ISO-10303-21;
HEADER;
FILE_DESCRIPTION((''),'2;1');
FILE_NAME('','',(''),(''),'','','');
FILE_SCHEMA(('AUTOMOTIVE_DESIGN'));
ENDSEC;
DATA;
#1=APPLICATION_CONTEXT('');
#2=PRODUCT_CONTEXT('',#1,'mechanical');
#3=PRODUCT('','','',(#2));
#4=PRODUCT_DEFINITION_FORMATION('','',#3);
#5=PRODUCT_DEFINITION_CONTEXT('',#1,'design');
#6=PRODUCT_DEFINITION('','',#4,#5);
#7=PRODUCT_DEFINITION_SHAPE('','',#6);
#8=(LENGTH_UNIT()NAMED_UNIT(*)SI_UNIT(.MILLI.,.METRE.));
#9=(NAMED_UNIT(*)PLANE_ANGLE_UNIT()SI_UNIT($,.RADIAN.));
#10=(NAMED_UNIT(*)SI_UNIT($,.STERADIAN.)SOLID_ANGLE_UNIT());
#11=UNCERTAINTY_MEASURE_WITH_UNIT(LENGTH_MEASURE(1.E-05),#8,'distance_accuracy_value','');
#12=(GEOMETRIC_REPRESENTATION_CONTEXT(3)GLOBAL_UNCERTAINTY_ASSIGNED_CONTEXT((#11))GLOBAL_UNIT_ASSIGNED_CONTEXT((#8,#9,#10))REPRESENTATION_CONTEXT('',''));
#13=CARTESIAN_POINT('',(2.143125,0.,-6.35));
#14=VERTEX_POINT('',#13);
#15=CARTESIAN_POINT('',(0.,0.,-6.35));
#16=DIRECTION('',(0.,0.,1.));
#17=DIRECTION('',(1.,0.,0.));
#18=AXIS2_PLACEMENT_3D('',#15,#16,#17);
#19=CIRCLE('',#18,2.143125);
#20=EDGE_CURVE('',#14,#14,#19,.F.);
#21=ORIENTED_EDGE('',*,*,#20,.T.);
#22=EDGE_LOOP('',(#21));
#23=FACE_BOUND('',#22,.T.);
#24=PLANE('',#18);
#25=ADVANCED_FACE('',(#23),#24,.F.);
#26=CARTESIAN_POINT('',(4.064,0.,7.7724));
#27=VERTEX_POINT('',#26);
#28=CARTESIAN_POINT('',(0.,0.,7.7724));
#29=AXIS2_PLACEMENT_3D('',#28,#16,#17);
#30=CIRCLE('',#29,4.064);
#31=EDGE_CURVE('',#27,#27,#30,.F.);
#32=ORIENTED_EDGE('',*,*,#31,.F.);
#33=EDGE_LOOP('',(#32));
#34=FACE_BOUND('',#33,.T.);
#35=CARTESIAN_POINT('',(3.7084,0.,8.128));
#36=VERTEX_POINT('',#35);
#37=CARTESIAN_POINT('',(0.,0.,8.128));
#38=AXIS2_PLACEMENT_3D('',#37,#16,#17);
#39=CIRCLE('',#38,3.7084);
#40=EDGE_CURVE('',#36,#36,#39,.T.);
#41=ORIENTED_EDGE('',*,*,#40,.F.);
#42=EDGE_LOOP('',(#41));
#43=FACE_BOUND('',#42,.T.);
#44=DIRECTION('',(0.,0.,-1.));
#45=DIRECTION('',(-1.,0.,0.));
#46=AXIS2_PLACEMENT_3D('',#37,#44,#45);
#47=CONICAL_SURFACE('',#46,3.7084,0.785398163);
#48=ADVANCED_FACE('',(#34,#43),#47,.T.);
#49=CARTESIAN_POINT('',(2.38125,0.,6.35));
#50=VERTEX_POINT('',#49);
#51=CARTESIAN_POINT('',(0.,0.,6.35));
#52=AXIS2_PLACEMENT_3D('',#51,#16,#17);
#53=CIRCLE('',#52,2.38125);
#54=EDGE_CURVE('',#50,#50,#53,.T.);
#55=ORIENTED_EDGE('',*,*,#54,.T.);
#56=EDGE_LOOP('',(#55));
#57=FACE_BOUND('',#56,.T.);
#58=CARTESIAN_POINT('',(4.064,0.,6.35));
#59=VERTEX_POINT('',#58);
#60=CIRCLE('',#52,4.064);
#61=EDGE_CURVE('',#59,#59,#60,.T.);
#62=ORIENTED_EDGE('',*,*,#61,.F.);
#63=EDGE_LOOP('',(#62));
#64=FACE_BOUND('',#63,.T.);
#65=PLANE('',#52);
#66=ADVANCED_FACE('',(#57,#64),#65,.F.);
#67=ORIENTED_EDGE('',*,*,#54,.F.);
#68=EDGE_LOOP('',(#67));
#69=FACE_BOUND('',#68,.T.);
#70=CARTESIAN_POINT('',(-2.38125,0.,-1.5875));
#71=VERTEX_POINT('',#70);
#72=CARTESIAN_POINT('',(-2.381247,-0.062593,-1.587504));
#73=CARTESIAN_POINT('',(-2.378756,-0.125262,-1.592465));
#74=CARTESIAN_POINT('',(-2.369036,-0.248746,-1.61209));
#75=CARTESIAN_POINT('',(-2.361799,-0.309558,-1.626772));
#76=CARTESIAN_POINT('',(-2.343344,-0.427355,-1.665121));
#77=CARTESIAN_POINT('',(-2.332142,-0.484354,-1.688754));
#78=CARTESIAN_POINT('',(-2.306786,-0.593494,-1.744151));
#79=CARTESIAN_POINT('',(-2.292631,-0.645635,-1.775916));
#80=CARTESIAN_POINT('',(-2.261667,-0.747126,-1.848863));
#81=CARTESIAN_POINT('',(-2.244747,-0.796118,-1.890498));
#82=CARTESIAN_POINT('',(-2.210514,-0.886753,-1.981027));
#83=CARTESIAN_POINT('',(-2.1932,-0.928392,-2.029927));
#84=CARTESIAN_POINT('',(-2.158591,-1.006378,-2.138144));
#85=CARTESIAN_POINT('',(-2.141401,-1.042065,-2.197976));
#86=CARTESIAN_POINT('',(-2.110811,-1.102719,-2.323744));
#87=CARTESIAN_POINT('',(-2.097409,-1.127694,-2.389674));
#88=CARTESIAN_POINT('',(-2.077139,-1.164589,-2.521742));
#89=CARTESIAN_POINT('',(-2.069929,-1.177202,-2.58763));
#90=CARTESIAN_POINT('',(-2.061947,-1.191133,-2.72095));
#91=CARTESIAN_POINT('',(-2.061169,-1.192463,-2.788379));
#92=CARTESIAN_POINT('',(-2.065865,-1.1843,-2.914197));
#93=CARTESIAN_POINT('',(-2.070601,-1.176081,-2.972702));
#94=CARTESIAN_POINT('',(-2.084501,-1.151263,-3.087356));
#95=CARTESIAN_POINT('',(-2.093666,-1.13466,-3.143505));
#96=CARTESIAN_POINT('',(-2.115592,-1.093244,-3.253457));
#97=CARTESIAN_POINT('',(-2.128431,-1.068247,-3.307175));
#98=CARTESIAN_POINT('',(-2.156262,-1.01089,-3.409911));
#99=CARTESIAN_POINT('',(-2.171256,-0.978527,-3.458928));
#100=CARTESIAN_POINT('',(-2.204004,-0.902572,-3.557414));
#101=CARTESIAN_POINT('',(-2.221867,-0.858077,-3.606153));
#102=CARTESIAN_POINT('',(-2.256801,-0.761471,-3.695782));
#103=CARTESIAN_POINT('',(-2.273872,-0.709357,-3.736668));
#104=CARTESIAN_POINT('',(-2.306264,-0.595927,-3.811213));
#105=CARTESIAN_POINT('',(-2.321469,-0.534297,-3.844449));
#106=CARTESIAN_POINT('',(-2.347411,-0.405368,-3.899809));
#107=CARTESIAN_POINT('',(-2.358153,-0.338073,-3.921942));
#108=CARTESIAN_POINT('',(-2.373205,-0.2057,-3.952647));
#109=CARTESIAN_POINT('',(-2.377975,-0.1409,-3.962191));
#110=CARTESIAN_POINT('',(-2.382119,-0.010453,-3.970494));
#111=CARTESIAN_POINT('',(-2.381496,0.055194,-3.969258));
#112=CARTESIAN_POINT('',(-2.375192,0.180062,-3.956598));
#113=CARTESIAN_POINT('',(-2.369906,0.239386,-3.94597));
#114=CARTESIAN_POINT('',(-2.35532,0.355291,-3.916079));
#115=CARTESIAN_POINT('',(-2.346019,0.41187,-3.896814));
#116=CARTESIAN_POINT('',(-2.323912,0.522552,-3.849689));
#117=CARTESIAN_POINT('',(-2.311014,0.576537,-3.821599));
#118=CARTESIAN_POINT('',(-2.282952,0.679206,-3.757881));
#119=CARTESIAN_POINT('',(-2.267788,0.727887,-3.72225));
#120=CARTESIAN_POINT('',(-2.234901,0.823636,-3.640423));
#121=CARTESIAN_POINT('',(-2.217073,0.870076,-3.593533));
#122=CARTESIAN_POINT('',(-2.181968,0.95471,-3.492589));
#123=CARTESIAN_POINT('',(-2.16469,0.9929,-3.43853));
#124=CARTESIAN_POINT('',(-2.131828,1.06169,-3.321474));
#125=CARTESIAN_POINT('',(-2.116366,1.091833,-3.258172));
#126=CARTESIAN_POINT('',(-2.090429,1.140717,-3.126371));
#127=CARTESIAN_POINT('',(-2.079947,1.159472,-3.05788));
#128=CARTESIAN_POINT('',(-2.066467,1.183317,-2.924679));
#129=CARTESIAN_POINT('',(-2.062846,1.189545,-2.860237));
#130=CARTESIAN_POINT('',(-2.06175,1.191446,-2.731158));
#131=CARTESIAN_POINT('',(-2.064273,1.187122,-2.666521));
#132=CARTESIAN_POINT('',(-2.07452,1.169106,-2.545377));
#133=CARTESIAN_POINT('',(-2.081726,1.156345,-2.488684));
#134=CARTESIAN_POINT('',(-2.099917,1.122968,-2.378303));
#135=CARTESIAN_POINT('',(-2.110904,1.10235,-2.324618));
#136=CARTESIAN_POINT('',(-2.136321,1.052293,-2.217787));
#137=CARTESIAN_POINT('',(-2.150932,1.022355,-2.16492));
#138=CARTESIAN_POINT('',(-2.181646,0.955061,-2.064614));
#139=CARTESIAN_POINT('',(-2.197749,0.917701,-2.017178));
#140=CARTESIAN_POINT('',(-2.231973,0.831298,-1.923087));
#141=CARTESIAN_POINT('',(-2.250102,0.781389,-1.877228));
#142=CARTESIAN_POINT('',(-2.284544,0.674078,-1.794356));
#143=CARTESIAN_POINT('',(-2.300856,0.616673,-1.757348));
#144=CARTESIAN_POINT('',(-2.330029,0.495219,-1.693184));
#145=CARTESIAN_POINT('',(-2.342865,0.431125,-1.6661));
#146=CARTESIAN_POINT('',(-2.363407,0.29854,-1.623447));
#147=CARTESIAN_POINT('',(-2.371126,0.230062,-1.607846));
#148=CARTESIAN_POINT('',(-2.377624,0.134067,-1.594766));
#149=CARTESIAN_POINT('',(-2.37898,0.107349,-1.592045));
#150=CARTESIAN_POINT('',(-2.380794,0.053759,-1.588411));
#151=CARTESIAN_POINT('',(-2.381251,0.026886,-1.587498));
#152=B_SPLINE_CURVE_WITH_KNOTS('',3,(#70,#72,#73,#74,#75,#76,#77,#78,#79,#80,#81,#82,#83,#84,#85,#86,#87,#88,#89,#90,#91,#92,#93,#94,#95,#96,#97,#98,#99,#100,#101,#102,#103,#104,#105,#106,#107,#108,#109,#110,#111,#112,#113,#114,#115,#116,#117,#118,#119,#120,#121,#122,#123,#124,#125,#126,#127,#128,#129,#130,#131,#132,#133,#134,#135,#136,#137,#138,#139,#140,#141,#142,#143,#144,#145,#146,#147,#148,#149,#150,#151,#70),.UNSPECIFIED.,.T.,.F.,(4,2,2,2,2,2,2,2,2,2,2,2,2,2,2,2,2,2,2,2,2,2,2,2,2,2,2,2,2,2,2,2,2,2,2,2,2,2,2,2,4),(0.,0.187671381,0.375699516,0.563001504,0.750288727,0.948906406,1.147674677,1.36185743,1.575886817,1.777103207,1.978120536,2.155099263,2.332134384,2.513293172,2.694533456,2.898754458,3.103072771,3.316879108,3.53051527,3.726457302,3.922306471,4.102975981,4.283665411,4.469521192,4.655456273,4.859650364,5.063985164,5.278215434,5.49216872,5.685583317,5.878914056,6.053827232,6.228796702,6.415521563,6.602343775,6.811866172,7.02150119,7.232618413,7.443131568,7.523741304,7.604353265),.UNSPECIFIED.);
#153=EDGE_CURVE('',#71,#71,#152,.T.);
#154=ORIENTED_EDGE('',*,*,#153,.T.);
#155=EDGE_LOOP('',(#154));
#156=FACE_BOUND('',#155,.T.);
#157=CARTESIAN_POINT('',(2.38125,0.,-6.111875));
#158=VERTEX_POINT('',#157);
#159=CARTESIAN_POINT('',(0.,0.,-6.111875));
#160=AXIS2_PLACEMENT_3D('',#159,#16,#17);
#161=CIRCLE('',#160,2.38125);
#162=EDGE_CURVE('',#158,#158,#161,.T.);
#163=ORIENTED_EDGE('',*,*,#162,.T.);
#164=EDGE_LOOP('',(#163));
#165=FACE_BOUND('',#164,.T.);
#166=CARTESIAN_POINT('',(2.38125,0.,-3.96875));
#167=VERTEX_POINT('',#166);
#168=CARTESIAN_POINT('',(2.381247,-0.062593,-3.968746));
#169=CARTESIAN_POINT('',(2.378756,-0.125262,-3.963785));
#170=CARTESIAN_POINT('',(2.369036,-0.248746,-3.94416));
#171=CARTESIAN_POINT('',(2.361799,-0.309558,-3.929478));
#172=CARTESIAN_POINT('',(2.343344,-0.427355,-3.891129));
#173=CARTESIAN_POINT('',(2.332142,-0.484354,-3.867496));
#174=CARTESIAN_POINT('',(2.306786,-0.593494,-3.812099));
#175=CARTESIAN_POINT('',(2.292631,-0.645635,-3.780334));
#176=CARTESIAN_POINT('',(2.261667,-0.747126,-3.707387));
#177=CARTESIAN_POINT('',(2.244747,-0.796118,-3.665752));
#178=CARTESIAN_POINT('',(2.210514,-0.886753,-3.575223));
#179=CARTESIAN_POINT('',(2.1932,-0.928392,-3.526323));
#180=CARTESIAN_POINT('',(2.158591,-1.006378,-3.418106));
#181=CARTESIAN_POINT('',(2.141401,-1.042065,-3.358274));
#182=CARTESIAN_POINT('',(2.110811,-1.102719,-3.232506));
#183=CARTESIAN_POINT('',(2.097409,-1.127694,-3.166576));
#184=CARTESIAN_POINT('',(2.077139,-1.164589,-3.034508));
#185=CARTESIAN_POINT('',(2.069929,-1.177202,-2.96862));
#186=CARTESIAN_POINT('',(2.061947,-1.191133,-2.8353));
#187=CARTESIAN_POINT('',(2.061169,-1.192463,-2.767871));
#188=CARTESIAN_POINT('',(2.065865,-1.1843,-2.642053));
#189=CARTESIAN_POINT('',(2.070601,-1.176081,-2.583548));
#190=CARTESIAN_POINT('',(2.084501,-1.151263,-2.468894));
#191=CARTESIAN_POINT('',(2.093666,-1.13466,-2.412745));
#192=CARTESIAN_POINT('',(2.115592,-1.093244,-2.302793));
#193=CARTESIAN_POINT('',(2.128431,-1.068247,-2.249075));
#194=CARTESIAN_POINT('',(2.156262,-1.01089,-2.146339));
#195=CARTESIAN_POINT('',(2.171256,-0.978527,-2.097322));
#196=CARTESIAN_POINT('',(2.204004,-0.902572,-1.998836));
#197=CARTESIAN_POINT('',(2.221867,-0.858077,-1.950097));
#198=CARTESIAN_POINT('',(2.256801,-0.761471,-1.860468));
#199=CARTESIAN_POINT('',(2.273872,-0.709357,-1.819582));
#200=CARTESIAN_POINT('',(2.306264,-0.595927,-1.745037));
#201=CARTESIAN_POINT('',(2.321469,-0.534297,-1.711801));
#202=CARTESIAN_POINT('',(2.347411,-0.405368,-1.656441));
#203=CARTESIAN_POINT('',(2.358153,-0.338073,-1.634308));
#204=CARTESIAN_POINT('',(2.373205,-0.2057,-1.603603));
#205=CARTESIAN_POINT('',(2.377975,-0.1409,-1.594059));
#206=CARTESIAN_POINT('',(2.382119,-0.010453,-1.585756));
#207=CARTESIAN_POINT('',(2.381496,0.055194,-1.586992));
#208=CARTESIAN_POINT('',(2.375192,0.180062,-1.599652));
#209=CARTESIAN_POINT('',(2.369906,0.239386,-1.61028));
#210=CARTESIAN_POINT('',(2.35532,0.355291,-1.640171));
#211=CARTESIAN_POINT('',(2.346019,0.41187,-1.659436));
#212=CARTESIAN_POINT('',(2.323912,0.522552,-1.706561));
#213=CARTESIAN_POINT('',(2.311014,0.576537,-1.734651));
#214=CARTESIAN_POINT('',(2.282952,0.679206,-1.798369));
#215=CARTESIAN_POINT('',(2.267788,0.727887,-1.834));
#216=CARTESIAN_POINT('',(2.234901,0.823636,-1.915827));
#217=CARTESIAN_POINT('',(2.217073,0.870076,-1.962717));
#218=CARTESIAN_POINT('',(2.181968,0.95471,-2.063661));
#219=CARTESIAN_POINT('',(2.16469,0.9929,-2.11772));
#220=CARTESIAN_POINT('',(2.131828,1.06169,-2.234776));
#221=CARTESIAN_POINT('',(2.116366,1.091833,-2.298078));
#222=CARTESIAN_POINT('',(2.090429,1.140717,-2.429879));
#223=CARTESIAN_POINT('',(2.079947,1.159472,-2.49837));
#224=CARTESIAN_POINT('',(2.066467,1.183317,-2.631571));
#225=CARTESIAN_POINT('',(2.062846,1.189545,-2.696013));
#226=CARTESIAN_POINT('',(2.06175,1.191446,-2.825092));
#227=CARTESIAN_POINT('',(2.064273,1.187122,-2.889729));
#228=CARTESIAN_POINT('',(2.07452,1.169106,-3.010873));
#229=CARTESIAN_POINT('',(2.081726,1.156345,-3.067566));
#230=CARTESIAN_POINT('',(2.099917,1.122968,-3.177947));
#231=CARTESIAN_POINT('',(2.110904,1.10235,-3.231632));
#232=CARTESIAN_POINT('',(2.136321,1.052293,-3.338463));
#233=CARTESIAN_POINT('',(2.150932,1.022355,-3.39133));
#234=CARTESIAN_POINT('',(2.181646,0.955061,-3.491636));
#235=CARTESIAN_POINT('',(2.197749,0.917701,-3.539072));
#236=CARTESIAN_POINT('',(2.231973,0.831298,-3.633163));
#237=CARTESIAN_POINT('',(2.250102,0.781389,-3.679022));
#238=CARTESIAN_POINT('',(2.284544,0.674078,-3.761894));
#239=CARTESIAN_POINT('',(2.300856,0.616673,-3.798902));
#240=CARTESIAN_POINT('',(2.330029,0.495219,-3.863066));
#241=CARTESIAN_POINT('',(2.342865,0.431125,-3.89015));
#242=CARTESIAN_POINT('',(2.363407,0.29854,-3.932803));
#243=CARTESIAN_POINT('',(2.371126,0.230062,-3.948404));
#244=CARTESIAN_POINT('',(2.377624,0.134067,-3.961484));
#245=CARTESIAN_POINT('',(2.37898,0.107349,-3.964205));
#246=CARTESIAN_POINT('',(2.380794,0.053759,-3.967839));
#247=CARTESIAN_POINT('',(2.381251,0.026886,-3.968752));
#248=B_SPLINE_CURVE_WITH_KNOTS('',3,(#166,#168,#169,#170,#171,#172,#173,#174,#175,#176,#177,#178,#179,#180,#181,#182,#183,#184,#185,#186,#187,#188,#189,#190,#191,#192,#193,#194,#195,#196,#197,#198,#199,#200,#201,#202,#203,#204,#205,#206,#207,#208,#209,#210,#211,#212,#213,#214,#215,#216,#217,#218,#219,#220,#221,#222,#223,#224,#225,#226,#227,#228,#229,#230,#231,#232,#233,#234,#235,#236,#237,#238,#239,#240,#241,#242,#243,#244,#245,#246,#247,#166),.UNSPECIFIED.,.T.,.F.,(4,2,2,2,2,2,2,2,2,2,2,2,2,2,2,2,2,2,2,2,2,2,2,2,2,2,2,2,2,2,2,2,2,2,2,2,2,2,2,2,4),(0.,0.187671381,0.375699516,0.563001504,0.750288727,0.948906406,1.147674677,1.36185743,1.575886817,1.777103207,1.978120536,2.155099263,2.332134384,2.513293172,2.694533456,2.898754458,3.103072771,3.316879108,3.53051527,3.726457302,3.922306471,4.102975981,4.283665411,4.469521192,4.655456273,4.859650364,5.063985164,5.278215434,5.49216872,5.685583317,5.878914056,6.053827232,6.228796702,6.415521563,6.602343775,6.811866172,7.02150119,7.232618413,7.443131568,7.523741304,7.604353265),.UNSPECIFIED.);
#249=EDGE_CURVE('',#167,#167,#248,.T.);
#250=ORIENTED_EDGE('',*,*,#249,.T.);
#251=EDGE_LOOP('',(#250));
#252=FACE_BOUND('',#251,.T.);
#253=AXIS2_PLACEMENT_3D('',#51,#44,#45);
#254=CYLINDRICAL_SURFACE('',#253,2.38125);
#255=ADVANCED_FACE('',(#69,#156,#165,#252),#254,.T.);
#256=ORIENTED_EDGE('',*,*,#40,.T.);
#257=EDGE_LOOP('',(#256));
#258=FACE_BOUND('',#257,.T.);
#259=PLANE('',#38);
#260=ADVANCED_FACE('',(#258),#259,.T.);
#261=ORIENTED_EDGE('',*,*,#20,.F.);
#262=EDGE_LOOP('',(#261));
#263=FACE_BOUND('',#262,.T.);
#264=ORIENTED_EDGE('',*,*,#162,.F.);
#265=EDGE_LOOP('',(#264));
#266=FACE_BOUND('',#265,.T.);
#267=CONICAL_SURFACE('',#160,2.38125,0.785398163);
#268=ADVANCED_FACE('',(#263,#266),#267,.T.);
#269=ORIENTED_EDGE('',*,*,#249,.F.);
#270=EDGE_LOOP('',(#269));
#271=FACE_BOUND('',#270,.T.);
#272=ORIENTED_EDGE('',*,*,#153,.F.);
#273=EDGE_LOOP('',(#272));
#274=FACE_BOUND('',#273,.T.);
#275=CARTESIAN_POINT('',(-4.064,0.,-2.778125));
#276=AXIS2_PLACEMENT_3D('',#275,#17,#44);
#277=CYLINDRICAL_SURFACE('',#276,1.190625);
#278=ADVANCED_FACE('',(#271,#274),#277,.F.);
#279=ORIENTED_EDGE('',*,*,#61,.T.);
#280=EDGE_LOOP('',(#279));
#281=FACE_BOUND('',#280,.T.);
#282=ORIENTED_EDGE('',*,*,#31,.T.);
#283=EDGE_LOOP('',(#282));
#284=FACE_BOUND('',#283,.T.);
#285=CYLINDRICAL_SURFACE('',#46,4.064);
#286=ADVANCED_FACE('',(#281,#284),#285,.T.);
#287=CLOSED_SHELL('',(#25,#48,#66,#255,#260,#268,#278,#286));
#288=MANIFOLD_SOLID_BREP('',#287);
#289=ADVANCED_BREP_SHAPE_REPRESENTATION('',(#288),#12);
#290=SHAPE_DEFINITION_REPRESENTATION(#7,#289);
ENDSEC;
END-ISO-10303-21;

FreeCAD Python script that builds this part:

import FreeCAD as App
import Part
import Sketcher
from FreeCAD import Vector
Q = App.Units.Quantity


def edges_at(feature, points):
    """Names of the edges that pass closest to the given points."""
    edges = feature.Shape.Edges
    near = lambda p: min(range(len(edges)), key=lambda i: edges[i].distToShape(Part.Vertex(*p))[0])
    return sorted({f"Edge{near(p) + 1}" for p in points})

doc = App.newDocument("Part")
body = doc.addObject("PartDesign::Body", "Body")

# Sketch on XY plane
sketch1 = body.newObject("Sketcher::SketchObject", "Sketch")
sketch1.AttachmentSupport = (doc.getObject("XY_Plane"), [""])
sketch1.MapMode = "FlatFace"
sketch1.addGeometry(Part.Circle(Vector(0, 0, 0), Vector(0, 0, 1), 2.4), False)
sketch1.addConstraint(Sketcher.Constraint("Coincident", 0, 3, -1, 1))
sketch1.addConstraint(Sketcher.Constraint("Diameter", 0, Q("0.1875 in")))
pad1 = body.newObject("PartDesign::Pad", "Pad")
pad1.Profile = sketch1
pad1.Length = Q("0.5 in")
pad1.Midplane = True

# Sketch on XY plane
sketch2 = body.newObject("Sketcher::SketchObject", "Sketch001")
sketch2.AttachmentSupport = (doc.getObject("XY_Plane"), [""])
sketch2.MapMode = "FlatFace"
sketch2.AttachmentOffset = App.Placement(Vector(0, 0, 0.25 * 25.4), App.Rotation())
sketch2.addGeometry(Part.Circle(Vector(0, 0, 0), Vector(0, 0, 1), 4.1), False)
sketch2.addConstraint(Sketcher.Constraint("Coincident", 0, 3, -1, 1))
sketch2.addConstraint(Sketcher.Constraint("Diameter", 0, Q("0.32 in")))
pad2 = body.newObject("PartDesign::Pad", "Pad001")
pad2.Profile = sketch2
pad2.Length = Q("0.07 in")
doc.recompute()

chamfer = body.newObject("PartDesign::Chamfer", "Chamfer")
chamfer.Base = (pad2, edges_at(pad2, [(-4.064, 0, 8.128)]))
chamfer.Size = Q("0.014 in")

# Sketch on YZ plane
sketch3 = body.newObject("Sketcher::SketchObject", "Sketch002")
sketch3.AttachmentSupport = (doc.getObject("YZ_Plane"), [""])
sketch3.MapMode = "FlatFace"
sketch3.addGeometry(Part.Circle(Vector(0, -2.8, 0), Vector(0, 0, 1), 1.2), False)
sketch3.addConstraint(Sketcher.Constraint("PointOnObject", 0, 3, -2))
sketch3.addConstraint(Sketcher.Constraint("Diameter", 0, Q("0.09375 in")))
sketch3.addConstraint(Sketcher.Constraint("DistanceY", 0, 3, -1, 1, Q("0.109375 in")))
pocket1 = body.newObject("PartDesign::Pocket", "Pocket")
pocket1.Profile = sketch3
pocket1.Type = "ThroughAll"
pocket1.Midplane = True
doc.recompute()

chamfer2 = body.newObject("PartDesign::Chamfer", "Chamfer001")
chamfer2.Base = (pocket1, edges_at(pocket1, [(-2.381, 0, -6.35)]))
chamfer2.Size = 0.238125

doc.recompute()
